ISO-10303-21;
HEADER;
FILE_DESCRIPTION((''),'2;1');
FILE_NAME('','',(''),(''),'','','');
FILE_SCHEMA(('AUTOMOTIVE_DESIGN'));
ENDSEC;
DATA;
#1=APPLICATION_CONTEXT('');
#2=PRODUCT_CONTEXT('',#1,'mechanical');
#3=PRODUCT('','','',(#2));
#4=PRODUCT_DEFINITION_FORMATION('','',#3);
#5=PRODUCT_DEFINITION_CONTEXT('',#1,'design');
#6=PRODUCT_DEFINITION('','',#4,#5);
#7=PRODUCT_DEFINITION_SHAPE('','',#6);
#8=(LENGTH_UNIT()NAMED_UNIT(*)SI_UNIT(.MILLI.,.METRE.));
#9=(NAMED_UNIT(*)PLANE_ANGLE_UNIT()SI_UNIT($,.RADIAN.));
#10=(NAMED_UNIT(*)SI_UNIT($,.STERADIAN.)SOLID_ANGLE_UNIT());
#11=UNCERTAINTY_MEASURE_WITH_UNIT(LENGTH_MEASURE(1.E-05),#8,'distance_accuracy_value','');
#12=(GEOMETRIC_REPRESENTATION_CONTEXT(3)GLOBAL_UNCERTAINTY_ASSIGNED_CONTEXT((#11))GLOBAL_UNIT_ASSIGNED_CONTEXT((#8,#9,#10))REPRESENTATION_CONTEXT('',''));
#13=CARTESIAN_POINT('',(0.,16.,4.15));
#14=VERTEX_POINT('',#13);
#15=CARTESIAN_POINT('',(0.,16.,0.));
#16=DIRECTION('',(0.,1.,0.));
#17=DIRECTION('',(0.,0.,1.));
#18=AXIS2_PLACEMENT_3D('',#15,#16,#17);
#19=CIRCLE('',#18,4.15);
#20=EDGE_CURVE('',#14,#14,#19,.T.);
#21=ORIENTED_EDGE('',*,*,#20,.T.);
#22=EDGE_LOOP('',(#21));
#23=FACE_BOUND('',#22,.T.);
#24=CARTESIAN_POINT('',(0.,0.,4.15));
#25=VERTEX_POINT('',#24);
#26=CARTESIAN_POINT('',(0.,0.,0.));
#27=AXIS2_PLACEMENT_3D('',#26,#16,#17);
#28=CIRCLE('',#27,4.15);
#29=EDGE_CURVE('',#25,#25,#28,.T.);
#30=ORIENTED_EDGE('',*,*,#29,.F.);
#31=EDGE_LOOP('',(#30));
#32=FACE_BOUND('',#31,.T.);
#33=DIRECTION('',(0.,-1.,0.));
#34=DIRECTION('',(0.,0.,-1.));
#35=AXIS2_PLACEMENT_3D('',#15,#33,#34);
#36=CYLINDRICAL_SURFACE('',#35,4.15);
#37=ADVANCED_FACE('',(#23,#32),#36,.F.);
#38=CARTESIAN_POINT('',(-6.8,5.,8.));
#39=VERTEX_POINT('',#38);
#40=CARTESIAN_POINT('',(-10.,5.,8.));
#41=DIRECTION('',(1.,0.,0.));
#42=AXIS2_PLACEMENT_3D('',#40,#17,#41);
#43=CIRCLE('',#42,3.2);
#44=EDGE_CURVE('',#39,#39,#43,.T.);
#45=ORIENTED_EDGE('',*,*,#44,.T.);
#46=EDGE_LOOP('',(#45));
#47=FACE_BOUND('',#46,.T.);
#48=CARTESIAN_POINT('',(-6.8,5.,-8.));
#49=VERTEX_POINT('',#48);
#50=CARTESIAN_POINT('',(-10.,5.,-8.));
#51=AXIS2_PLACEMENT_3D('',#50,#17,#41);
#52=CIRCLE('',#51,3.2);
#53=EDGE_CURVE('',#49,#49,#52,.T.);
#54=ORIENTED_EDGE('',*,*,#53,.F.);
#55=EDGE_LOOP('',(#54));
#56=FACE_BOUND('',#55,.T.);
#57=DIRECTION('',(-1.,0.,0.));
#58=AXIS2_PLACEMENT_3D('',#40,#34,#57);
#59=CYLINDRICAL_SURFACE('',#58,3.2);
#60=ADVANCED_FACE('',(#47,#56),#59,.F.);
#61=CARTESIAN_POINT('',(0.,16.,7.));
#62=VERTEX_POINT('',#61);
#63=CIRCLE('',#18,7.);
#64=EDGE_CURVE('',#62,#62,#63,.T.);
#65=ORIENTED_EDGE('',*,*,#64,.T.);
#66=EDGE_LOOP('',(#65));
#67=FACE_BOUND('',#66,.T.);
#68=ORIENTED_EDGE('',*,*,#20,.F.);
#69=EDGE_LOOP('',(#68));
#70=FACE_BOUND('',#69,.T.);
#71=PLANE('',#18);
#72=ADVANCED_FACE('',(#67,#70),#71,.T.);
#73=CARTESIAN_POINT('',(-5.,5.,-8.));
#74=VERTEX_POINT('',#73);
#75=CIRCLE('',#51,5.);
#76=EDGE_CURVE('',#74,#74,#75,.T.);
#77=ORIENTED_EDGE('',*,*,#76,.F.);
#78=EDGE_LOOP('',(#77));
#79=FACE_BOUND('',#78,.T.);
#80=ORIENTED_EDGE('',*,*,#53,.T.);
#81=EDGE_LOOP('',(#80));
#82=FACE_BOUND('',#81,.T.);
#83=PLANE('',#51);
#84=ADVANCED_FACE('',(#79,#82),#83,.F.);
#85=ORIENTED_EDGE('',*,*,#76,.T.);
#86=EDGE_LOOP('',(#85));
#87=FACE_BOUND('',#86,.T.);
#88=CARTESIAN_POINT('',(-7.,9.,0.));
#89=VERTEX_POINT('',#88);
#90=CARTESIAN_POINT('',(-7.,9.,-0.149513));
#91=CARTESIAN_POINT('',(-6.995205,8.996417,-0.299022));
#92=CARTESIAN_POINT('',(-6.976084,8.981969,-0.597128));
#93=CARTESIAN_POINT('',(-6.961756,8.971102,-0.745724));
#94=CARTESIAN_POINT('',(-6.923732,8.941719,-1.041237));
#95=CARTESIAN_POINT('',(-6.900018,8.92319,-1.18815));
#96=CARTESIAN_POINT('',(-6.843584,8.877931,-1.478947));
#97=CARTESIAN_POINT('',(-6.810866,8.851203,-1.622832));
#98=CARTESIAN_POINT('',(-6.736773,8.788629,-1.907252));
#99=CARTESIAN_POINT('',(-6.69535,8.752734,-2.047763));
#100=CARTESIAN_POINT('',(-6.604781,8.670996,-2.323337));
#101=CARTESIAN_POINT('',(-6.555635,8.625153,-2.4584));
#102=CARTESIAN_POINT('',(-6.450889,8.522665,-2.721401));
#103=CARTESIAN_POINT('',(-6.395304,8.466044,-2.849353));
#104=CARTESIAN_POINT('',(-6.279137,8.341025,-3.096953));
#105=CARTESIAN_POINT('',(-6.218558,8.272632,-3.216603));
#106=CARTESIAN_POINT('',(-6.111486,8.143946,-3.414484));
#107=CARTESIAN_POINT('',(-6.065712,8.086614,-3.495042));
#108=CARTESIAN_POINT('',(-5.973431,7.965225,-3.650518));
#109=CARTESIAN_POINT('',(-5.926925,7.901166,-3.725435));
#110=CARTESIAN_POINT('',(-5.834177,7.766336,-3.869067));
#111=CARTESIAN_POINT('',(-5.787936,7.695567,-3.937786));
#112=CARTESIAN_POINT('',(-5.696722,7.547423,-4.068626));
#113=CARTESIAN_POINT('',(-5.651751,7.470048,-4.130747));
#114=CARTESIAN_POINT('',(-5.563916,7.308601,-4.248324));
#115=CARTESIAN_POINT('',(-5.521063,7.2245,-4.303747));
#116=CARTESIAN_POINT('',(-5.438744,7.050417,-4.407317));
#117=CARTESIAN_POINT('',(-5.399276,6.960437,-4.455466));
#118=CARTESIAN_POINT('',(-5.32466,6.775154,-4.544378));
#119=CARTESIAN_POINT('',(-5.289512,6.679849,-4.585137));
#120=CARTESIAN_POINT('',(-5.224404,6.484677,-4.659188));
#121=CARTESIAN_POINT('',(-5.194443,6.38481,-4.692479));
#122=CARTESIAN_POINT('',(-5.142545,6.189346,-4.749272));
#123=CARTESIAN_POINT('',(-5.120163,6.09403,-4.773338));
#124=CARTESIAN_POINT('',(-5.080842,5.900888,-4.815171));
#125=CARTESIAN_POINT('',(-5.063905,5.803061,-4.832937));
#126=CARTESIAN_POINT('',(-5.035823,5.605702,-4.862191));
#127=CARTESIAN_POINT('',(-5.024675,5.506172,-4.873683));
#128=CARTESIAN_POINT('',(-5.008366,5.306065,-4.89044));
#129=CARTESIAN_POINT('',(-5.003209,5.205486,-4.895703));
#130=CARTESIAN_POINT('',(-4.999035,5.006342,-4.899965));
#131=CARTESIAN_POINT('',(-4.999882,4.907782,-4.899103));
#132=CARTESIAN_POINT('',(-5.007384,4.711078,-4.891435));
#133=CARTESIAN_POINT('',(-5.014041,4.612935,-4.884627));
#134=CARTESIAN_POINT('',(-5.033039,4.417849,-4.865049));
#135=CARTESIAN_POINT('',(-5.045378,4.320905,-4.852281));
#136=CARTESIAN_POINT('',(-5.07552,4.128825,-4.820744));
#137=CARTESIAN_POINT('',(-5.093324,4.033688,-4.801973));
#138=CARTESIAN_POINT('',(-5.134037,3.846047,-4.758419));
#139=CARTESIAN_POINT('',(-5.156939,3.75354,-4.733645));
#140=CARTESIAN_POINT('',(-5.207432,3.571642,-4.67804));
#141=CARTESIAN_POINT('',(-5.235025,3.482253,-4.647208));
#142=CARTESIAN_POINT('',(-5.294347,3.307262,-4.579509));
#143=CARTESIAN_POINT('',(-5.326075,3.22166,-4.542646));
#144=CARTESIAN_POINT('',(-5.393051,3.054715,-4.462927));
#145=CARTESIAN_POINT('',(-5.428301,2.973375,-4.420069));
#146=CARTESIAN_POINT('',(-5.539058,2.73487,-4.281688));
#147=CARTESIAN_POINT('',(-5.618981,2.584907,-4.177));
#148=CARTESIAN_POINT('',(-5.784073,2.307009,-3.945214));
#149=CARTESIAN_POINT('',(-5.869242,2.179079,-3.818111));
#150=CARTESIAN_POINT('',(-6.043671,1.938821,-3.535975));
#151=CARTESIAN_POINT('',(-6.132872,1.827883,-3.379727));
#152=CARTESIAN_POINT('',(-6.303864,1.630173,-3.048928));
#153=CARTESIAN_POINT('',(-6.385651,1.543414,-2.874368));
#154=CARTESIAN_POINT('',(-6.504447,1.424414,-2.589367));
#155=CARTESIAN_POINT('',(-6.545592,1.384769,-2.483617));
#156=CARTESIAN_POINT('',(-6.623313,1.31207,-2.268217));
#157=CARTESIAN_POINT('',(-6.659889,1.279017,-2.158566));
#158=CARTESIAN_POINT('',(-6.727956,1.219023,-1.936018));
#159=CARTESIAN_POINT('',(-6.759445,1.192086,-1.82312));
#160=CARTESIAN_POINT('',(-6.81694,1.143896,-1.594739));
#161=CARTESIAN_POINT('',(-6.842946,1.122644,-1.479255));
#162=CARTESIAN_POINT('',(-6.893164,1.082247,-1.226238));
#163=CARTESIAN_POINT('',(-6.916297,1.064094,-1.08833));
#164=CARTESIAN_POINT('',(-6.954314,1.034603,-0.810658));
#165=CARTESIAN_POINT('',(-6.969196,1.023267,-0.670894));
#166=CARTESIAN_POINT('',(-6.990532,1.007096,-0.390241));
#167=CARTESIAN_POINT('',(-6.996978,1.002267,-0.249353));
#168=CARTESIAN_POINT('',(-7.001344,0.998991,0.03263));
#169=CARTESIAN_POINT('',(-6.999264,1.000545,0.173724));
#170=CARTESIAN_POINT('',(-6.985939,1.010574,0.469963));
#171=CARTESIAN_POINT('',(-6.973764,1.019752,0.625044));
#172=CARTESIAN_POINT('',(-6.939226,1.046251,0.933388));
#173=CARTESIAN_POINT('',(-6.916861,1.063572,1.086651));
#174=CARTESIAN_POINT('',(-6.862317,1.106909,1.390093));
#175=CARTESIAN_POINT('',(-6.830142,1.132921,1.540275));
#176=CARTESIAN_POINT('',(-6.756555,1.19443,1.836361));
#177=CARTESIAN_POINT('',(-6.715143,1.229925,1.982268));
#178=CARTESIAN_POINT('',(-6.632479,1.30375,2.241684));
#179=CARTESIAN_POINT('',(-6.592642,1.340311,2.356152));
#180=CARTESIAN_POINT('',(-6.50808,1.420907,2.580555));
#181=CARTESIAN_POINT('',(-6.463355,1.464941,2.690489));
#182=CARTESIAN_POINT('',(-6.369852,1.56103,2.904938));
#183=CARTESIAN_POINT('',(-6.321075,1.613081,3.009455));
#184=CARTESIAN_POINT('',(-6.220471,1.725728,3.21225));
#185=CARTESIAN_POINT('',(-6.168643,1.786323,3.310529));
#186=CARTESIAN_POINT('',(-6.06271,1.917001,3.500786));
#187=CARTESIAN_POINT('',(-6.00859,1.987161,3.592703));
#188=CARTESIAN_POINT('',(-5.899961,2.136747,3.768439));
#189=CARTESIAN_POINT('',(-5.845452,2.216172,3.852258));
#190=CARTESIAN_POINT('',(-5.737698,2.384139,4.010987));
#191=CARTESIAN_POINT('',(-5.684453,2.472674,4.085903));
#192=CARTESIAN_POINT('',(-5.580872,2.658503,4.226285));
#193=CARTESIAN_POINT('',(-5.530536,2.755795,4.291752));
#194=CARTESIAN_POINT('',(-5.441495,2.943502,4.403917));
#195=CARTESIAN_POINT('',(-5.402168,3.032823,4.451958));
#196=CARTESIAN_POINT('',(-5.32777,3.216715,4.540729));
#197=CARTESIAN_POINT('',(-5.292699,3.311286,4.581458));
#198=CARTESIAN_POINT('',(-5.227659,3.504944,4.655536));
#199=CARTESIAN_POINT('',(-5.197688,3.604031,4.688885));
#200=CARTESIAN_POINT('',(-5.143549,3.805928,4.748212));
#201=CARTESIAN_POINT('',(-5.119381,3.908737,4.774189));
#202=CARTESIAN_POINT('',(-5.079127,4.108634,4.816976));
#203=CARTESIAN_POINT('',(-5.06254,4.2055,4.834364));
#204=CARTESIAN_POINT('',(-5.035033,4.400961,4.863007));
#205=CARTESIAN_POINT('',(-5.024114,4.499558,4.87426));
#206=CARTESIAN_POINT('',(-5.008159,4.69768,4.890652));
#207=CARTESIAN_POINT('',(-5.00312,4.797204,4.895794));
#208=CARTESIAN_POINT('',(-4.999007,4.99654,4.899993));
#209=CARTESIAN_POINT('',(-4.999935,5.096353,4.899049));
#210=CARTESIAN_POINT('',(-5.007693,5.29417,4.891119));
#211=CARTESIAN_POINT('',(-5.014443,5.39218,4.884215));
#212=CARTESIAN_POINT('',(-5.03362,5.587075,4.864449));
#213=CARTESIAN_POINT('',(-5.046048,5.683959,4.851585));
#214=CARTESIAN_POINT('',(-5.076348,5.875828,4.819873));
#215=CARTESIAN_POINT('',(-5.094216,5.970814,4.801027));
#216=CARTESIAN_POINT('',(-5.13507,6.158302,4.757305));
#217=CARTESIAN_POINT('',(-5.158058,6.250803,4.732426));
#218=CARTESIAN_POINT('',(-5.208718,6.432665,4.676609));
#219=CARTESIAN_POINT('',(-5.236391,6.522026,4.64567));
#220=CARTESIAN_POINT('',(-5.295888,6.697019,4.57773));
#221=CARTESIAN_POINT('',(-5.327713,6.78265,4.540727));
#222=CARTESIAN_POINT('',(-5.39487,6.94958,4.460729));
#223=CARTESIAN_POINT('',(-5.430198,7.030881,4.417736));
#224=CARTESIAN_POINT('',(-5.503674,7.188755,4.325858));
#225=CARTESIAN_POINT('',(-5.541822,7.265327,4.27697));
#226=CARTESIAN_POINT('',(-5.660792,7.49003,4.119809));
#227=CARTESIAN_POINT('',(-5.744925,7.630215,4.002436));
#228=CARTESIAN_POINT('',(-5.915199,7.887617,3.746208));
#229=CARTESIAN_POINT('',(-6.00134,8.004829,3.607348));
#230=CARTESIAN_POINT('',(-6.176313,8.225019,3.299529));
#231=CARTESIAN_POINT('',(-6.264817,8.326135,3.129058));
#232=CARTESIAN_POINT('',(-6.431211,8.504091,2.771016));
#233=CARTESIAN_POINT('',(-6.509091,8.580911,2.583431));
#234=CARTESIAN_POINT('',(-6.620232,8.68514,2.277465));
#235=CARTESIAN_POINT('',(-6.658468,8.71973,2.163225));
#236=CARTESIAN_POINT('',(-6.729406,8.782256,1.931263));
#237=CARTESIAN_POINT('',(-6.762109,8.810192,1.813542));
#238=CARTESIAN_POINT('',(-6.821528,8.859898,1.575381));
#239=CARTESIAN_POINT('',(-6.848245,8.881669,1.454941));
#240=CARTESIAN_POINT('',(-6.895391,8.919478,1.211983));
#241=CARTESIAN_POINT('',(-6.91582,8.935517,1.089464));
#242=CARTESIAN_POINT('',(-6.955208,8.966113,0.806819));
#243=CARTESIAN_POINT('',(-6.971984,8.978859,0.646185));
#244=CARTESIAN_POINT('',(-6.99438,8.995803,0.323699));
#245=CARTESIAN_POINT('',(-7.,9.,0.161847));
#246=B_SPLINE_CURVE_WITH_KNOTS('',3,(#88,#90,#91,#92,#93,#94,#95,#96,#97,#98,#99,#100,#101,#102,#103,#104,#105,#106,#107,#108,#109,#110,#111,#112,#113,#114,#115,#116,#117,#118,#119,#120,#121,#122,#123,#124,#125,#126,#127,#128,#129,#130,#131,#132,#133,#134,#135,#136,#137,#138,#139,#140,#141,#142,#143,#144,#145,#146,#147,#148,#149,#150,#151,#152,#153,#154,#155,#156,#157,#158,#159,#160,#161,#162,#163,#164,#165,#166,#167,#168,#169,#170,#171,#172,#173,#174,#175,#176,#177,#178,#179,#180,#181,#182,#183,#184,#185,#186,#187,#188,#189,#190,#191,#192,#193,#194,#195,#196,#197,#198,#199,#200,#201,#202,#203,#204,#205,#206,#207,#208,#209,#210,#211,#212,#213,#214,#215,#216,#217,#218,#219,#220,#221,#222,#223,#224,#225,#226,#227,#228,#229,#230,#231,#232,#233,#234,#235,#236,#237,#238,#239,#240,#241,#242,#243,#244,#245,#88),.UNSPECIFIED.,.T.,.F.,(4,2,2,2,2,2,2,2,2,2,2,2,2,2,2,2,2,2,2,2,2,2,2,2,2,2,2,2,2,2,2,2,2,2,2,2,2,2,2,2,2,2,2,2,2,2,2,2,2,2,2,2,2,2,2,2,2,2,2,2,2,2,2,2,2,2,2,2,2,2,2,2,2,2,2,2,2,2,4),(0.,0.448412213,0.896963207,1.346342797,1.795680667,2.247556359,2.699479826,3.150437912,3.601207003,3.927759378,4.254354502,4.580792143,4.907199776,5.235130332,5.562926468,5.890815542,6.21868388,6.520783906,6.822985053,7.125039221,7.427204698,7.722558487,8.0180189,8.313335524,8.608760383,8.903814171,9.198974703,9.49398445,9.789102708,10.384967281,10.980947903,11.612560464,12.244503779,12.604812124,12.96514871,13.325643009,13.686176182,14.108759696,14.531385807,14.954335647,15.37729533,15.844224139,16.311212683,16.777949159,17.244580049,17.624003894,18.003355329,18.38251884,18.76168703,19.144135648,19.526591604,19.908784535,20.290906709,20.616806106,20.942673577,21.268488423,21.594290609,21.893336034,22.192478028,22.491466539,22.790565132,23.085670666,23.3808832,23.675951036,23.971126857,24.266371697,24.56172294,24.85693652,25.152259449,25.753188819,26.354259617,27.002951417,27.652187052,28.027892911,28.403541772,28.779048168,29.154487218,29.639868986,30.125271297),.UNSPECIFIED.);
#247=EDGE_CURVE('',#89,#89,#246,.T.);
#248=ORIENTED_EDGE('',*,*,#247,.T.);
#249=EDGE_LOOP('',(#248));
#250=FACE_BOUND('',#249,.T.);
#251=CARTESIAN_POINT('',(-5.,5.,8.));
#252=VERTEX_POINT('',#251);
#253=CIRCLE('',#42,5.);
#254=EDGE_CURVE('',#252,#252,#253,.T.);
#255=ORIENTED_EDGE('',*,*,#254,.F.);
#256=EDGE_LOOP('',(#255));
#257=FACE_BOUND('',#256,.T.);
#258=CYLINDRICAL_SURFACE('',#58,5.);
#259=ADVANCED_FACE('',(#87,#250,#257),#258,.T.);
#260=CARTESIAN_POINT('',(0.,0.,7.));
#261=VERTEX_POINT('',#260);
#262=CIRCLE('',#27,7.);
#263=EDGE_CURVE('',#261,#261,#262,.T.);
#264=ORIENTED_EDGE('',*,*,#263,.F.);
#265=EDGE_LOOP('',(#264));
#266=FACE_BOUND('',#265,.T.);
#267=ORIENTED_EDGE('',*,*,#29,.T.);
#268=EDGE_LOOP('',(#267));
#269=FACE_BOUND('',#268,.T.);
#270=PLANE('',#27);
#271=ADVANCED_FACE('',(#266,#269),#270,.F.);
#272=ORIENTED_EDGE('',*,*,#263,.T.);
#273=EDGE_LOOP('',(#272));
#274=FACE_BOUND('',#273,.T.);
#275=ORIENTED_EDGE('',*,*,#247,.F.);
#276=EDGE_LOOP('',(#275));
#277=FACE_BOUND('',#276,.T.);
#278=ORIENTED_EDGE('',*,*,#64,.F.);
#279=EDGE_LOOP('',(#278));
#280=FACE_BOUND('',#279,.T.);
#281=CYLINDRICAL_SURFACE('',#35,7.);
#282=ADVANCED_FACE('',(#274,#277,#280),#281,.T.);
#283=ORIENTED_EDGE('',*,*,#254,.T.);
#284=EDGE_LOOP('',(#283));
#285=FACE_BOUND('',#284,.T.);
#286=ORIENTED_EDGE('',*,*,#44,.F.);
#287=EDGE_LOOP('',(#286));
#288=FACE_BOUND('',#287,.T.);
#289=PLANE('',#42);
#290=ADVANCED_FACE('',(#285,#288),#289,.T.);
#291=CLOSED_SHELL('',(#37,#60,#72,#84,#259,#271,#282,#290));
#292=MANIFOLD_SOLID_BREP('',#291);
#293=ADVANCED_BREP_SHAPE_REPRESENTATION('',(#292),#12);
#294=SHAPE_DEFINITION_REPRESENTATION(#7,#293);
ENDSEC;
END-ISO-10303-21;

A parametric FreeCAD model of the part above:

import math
import FreeCAD as App
import Part
import Sketcher

doc = App.newDocument("Part")
body = doc.addObject("PartDesign::Body", "Body")

# Sketch on XZ plane
sketch1 = doc.addObject("Sketcher::SketchObject", "Sketch")
body.addObject(sketch1)
sketch1.AttachmentSupport = (doc.XZ_Plane, [""])
sketch1.MapMode = "FlatFace"
sketch1.addGeometry(Part.Circle(App.Vector(0, 0, 0), App.Vector(0, 0, 1), 7), False)
sketch1.addGeometry(Part.Circle(App.Vector(0, 0, 0), App.Vector(0, 0, 1), 4.2), False)
sketch1.addConstraint(Sketcher.Constraint("Coincident", 0, 3, -1, 1))
sketch1.addConstraint(Sketcher.Constraint("Coincident", 1, 3, -1, 1))
sketch1.addConstraint(Sketcher.Constraint("Diameter", 0, 14.0))
sketch1.addConstraint(Sketcher.Constraint("Diameter", 1, 8.3))
pad1 = doc.addObject("PartDesign::Pad", "Pad")
body.addObject(pad1)
pad1.Profile = sketch1
pad1.Length = 16
pad1.Reversed = True

# Sketch on XY plane
sketch2 = doc.addObject("Sketcher::SketchObject", "Sketch001")
body.addObject(sketch2)
sketch2.AttachmentSupport = (doc.XY_Plane, [""])
sketch2.MapMode = "FlatFace"
sketch2.addGeometry(Part.Circle(App.Vector(-10, 5, 0), App.Vector(0, 0, 1), 5), False)
sketch2.addGeometry(Part.Circle(App.Vector(-10, 5, 0), App.Vector(0, 0, 1), 3.2), False)
sketch2.addConstraint(Sketcher.Constraint("Coincident", 1, 3, 0, 3))
sketch2.addConstraint(Sketcher.Constraint("Diameter", 0, 10.0))
sketch2.addConstraint(Sketcher.Constraint("Diameter", 1, 6.4))
sketch2.addConstraint(Sketcher.Constraint("DistanceX", 0, 3, -1, 1, 10.0))
sketch2.addConstraint(Sketcher.Constraint("DistanceY", -1, 1, 0, 3, 5.0))
pad2 = doc.addObject("PartDesign::Pad", "Pad001")
body.addObject(pad2)
pad2.Profile = sketch2
pad2.Length = 16
pad2.Midplane = True

# Sketch on XY plane
sketch3 = doc.addObject("Sketcher::SketchObject", "Sketch002")
body.addObject(sketch3)
sketch3.AttachmentSupport = (doc.XY_Plane, [""])
sketch3.MapMode = "FlatFace"
sketch3.addGeometry(Part.ArcOfCircle(Part.Circle(App.Vector(-10, 5, 0), App.Vector(0, 0, 1), 3.2), math.radians(0), math.radians(20)), False)
sketch3.addGeometry(Part.ArcOfCircle(Part.Circle(App.Vector(-10, 5, 0), App.Vector(0, 0, 1), 3.2), math.radians(20), math.radians(340)), False)
sketch3.addGeometry(Part.ArcOfCircle(Part.Circle(App.Vector(-10, 5, 0), App.Vector(0, 0, 1), 3.2), math.radians(-20), math.radians(0)), False)
sketch3.addConstraint(Sketcher.Constraint("Tangent", 0, 2, 1, 1))
sketch3.addConstraint(Sketcher.Constraint("Tangent", 1, 2, 2, 1))
sketch3.addConstraint(Sketcher.Constraint("Tangent", 2, 2, 0, 1))
sketch3.addConstraint(Sketcher.Constraint("Horizontal", 1, 3, 2, 2))
sketch3.addConstraint(Sketcher.Constraint("Vertical", 0, 2, 1, 2))
sketch3.addConstraint(Sketcher.Constraint("Radius", 0, 3.2))
sketch3.addConstraint(Sketcher.Constraint("DistanceX", 0, 3, -1, 1, 10.0))
sketch3.addConstraint(Sketcher.Constraint("DistanceY", -1, 1, 0, 3, 5.0))
sketch3.addConstraint(Sketcher.Constraint("DistanceX", 0, 2, -1, 1, 7.0))
pocket1 = doc.addObject("PartDesign::Pocket", "Pocket")
body.addObject(pocket1)
pocket1.Profile = sketch3
pocket1.Type = "ThroughAll"
pocket1.Midplane = True

doc.recompute()
